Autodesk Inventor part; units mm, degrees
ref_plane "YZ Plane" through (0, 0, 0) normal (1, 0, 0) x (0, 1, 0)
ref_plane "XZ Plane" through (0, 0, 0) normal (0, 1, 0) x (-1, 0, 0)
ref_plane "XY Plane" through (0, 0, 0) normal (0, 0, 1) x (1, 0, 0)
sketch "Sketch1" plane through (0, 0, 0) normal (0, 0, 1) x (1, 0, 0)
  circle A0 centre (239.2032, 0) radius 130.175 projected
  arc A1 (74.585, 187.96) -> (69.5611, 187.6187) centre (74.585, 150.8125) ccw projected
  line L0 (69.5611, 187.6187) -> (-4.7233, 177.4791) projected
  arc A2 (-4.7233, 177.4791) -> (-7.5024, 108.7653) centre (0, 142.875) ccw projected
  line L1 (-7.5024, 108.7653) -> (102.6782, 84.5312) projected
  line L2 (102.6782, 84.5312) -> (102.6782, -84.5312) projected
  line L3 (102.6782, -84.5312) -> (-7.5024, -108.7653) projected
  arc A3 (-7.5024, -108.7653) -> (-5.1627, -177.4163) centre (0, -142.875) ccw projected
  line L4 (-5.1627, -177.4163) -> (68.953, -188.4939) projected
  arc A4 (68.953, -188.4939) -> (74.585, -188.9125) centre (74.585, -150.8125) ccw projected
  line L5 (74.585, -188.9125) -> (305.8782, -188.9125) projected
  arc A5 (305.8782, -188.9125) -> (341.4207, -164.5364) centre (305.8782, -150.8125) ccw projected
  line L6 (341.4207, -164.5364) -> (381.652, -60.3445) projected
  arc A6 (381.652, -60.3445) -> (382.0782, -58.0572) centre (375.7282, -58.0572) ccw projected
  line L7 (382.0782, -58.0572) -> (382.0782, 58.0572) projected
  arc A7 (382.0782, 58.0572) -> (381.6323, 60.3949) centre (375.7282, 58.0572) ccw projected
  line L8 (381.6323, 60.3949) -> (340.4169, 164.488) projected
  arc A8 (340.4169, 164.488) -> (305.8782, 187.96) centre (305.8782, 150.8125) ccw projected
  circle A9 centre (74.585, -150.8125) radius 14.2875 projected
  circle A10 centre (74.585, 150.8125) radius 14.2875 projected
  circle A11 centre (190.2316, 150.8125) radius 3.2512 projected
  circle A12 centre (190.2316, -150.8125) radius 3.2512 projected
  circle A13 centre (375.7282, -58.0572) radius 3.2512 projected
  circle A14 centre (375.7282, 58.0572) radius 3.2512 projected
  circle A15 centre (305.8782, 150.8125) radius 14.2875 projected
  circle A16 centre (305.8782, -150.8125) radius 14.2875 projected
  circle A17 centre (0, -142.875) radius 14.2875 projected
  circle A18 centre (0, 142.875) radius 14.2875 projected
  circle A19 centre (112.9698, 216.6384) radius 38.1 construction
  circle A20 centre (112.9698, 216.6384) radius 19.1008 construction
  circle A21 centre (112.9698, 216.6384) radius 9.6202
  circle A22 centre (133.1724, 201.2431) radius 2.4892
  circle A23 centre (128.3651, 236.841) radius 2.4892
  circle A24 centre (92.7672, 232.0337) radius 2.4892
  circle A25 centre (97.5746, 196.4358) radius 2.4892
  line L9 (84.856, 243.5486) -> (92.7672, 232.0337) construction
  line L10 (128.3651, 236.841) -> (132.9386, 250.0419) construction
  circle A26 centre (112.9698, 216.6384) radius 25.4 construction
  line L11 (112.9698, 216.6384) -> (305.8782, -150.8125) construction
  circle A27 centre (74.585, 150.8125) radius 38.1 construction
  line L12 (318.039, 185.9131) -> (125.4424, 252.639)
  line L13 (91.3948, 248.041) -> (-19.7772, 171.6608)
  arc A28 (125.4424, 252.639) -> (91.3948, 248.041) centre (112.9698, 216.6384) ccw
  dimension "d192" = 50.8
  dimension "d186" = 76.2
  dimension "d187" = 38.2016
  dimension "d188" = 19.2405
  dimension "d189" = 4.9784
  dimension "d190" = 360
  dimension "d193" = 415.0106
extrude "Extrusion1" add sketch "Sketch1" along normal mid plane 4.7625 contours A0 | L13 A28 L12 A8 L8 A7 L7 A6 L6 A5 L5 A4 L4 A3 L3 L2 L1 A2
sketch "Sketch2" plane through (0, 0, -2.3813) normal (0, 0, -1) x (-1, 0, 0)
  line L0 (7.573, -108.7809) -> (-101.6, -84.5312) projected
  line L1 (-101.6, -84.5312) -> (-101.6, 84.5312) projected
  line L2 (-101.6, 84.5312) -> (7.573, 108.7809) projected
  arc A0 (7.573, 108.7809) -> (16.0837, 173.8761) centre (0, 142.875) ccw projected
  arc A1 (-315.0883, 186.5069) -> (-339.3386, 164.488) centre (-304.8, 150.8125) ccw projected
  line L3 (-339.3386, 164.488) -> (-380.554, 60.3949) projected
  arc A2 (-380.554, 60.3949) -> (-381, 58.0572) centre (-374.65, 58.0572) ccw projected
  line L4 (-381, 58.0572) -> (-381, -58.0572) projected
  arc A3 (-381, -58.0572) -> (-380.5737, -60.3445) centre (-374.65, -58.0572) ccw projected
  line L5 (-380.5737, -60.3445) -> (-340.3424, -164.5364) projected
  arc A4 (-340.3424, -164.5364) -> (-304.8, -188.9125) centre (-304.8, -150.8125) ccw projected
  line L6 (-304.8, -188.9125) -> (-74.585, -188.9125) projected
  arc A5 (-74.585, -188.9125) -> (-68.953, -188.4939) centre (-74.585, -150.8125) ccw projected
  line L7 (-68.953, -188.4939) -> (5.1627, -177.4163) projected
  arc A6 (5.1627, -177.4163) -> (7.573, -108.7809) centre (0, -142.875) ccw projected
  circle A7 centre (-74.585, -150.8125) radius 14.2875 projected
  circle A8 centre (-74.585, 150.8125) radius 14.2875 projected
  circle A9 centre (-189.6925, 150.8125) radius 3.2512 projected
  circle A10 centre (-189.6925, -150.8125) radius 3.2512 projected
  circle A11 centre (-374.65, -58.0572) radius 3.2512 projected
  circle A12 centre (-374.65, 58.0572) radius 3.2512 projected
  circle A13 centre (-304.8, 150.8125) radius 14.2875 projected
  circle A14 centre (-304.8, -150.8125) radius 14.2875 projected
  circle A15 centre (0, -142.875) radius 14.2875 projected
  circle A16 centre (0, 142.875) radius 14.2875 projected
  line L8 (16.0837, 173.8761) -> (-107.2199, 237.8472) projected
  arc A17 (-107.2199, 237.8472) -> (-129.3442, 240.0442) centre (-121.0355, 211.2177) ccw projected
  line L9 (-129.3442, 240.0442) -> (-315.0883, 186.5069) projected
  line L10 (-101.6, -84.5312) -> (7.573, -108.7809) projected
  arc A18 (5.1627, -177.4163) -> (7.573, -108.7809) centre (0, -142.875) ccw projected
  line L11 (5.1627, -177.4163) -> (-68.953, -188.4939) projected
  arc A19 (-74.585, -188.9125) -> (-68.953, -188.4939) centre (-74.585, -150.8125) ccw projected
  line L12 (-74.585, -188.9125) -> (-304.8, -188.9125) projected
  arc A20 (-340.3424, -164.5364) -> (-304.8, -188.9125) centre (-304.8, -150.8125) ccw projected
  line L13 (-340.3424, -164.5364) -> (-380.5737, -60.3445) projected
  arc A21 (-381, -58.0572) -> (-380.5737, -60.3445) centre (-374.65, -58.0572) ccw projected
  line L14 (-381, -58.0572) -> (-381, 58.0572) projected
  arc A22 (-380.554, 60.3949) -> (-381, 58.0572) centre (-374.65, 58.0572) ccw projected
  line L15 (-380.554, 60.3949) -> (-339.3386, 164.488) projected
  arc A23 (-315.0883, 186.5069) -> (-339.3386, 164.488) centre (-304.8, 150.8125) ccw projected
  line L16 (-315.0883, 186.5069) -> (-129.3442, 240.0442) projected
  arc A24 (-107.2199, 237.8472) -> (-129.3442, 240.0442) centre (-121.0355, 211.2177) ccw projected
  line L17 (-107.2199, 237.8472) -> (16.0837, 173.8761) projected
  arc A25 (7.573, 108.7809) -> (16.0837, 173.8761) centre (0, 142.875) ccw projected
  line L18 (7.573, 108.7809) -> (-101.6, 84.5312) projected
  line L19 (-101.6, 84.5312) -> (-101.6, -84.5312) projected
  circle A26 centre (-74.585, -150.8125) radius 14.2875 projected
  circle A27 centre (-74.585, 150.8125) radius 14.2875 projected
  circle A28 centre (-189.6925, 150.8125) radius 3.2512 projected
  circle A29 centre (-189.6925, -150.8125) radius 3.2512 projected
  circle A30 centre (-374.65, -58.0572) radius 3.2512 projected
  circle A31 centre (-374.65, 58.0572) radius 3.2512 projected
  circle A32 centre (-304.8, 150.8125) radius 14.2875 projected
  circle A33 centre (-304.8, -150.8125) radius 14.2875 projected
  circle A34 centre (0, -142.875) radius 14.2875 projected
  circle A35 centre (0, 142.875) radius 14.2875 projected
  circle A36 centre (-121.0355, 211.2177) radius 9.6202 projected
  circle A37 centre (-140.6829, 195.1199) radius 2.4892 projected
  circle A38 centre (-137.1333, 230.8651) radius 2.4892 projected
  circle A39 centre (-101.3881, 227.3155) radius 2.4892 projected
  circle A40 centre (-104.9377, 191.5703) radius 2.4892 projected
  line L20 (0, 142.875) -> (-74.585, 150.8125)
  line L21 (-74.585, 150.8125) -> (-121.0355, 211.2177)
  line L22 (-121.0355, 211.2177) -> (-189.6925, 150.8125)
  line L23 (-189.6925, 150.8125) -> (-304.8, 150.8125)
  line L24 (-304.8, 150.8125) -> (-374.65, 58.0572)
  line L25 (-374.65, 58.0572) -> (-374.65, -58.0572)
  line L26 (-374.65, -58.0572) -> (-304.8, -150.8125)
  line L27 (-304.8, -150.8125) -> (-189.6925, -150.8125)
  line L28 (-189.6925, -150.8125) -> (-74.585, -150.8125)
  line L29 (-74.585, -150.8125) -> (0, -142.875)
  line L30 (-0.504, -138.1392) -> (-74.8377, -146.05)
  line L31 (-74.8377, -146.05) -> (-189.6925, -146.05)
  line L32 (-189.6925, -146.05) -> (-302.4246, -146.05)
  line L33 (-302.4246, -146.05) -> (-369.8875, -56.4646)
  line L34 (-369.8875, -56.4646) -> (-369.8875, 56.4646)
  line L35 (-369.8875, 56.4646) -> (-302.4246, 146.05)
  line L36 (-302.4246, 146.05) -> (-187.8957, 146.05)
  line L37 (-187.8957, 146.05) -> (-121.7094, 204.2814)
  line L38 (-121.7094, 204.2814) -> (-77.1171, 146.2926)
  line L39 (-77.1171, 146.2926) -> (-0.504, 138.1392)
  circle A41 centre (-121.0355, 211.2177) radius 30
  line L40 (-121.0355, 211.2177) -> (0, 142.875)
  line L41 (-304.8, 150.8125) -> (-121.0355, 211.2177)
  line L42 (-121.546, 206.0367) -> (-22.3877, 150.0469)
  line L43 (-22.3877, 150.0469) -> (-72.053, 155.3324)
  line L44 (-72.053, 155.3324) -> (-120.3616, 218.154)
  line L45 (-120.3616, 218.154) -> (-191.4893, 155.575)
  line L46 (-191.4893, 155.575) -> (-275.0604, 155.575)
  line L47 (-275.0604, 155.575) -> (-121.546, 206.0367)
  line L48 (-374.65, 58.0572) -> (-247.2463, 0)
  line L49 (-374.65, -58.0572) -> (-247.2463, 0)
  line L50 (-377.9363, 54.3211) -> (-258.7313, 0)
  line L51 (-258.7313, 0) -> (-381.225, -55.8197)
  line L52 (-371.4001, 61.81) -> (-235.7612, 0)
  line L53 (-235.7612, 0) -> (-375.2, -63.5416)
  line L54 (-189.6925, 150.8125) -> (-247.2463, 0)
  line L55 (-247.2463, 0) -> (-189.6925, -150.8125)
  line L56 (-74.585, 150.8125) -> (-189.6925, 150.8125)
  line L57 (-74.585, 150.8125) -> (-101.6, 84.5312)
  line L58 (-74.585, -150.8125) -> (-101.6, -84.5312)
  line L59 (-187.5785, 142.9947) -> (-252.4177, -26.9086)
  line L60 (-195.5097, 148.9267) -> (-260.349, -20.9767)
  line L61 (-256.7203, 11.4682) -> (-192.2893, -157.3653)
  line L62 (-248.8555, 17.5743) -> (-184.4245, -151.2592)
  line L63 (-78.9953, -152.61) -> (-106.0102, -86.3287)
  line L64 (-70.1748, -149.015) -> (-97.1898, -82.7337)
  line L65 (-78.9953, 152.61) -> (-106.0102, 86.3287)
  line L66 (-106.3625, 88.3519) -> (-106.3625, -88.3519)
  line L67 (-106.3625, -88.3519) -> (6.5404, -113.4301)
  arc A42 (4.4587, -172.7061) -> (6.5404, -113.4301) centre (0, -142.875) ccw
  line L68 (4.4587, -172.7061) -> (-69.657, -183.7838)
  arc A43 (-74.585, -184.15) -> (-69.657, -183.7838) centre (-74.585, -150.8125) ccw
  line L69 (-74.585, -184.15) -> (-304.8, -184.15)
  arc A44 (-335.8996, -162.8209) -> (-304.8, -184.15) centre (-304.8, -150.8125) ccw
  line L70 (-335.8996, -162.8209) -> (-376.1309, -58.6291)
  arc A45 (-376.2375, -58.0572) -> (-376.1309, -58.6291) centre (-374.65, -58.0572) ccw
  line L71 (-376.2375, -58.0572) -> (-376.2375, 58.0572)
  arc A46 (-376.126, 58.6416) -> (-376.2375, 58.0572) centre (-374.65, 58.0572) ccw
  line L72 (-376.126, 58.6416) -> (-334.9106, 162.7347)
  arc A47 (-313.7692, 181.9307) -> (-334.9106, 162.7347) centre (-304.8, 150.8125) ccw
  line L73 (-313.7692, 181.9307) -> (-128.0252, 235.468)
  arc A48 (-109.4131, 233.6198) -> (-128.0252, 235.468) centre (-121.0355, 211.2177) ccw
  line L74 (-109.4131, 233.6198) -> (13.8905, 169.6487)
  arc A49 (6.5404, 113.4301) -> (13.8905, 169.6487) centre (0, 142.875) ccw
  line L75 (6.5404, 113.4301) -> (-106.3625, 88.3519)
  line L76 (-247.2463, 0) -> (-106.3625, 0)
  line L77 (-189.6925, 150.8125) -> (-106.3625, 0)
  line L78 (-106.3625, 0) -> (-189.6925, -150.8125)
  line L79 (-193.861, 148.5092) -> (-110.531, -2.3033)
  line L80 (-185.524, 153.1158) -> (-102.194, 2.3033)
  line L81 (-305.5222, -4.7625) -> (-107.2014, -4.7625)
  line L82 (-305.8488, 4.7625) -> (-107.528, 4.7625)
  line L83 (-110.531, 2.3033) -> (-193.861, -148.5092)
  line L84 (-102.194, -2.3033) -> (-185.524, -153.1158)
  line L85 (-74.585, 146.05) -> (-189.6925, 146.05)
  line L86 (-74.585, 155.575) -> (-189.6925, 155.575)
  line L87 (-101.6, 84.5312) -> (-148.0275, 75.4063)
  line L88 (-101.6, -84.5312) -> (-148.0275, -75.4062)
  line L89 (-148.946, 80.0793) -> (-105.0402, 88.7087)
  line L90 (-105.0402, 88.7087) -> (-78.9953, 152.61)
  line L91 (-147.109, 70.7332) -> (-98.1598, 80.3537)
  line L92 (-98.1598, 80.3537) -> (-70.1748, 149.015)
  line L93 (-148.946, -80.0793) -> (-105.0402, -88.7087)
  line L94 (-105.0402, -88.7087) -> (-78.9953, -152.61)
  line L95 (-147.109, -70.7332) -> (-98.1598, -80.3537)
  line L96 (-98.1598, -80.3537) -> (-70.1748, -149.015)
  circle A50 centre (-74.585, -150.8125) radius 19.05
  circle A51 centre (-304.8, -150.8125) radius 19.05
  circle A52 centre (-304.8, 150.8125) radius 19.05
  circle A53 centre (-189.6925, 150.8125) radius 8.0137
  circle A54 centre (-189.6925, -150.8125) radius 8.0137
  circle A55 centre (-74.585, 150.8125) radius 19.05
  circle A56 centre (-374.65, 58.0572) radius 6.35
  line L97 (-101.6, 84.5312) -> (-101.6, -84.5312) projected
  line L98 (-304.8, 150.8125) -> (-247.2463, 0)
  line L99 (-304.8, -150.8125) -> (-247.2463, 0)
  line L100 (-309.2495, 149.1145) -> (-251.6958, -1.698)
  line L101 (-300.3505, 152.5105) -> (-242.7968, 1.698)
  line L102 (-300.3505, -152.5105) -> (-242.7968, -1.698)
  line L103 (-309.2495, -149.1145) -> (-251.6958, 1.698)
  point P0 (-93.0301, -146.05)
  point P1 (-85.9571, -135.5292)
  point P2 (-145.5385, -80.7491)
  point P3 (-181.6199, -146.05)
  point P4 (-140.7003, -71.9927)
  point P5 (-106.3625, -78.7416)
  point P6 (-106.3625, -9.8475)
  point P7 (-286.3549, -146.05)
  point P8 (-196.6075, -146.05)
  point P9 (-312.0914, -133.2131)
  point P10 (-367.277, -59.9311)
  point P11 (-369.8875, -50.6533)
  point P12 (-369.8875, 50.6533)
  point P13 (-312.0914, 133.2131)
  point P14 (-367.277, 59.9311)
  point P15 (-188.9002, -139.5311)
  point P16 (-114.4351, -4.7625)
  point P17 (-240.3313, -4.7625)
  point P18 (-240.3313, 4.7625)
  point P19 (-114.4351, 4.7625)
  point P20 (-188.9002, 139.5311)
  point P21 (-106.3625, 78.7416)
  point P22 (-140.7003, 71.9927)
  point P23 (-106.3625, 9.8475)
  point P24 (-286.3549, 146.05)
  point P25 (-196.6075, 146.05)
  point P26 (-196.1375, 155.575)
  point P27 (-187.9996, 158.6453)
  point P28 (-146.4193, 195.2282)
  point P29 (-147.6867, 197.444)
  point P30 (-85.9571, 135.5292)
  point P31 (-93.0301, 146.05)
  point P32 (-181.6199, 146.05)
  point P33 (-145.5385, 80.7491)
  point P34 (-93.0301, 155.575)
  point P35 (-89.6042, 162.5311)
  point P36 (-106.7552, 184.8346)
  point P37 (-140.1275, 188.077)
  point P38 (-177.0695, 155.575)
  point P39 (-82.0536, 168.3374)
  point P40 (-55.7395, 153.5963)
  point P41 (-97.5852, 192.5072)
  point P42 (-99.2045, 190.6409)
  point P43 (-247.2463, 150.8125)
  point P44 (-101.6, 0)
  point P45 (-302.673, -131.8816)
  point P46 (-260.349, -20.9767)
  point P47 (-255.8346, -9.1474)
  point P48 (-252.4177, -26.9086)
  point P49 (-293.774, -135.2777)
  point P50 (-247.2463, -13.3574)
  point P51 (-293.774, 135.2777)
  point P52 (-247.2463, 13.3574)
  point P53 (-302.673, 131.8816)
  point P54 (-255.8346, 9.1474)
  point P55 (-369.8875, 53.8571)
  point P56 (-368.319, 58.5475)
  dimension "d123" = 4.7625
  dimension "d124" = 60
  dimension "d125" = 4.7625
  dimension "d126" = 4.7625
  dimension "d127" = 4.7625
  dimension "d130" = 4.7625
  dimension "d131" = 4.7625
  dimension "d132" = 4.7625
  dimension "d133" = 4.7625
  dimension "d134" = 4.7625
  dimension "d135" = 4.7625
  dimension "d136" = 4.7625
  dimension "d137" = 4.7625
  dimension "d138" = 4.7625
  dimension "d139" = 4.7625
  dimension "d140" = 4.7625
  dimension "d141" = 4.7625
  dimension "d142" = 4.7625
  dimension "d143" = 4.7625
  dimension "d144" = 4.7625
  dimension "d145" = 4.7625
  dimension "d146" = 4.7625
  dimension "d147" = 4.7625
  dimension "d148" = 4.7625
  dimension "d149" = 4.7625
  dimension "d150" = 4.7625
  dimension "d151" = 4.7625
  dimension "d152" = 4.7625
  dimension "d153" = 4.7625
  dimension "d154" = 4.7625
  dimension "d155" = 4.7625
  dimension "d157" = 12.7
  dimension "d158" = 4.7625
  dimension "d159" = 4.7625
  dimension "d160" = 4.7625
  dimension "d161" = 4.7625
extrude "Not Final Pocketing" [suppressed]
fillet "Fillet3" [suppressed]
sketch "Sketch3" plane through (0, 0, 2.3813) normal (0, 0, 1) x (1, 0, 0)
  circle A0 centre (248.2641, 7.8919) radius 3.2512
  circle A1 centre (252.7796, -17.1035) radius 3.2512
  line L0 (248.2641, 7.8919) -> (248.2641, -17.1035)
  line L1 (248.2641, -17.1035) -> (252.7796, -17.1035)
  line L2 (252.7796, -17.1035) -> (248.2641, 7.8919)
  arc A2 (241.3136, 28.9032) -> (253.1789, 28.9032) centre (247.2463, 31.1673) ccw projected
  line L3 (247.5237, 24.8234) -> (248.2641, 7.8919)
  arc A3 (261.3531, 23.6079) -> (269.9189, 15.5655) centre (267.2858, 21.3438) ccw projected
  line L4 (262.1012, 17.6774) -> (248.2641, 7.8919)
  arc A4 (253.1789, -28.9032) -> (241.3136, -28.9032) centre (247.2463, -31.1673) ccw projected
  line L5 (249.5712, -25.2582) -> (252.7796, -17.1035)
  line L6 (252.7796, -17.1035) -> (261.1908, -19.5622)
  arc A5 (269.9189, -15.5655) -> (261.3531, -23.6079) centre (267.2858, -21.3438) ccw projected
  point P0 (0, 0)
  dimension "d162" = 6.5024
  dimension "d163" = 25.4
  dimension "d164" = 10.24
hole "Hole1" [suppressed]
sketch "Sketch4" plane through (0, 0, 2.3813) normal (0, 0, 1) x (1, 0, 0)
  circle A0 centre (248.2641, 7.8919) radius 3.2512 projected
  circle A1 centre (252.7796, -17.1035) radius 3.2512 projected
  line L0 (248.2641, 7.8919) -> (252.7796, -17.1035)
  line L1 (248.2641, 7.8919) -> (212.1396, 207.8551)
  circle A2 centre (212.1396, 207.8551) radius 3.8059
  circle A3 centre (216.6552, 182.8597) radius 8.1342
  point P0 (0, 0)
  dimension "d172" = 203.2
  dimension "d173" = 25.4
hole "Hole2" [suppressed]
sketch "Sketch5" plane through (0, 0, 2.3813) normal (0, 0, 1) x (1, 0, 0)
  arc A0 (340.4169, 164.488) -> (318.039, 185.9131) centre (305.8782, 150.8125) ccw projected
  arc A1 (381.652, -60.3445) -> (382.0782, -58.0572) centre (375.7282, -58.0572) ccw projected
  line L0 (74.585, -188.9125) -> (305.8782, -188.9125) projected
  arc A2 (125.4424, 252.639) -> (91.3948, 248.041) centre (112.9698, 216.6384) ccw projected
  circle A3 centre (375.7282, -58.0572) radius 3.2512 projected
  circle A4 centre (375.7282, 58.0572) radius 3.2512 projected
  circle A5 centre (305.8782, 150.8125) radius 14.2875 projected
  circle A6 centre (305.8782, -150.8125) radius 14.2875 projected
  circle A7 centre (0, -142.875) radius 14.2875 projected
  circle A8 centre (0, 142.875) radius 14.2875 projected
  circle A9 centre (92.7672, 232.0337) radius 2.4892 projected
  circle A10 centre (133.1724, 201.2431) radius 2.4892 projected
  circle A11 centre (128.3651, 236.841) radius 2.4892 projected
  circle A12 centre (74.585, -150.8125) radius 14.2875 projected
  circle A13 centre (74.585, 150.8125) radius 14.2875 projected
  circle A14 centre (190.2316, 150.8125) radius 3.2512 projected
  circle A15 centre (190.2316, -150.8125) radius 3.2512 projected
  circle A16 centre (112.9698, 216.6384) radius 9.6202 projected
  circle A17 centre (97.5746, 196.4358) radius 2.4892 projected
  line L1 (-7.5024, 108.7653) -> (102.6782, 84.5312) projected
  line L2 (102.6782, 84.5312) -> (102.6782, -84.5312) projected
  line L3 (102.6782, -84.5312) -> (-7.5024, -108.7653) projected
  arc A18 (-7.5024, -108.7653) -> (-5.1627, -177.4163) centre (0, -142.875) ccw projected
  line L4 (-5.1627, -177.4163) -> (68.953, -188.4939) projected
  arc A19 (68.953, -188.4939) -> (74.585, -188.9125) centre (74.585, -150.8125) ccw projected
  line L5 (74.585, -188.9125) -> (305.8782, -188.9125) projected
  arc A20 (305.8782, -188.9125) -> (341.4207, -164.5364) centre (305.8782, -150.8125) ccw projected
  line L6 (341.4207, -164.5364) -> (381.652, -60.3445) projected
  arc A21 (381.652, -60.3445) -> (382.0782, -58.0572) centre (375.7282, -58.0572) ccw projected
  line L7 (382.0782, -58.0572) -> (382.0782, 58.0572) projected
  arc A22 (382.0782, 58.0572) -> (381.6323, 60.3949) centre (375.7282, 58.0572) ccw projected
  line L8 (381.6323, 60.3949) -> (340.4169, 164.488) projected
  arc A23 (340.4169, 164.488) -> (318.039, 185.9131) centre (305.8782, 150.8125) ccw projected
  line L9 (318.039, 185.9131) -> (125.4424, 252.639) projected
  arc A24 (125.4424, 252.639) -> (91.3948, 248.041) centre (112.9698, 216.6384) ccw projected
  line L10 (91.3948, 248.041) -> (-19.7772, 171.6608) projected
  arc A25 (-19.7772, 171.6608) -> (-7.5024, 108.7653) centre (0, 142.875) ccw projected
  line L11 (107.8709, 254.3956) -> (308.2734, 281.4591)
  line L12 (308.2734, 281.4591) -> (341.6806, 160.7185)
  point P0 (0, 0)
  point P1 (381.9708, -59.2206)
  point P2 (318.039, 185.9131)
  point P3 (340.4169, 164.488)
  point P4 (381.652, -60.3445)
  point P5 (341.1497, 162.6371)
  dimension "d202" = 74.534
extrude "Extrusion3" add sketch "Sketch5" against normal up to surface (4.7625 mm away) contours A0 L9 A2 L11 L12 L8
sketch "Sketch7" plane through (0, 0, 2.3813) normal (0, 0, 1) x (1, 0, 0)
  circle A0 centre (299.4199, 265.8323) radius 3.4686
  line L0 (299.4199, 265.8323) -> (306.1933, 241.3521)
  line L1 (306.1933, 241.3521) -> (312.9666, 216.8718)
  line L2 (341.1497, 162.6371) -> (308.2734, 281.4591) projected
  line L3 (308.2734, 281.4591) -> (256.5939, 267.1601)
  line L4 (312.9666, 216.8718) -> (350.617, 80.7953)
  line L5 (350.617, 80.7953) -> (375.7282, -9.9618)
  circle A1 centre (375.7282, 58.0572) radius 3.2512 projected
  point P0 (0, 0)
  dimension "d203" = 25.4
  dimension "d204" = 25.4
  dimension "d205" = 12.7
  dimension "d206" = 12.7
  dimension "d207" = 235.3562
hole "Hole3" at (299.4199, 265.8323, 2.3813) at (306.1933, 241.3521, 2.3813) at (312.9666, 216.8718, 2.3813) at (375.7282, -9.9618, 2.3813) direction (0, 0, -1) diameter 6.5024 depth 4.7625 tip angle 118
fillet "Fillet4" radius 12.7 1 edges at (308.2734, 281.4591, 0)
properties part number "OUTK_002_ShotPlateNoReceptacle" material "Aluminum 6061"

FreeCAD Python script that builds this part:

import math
import FreeCAD as App
import Part
import Sketcher
from FreeCAD import Vector
Q = App.Units.Quantity


def edges_at(feature, points):
    """Names of the edges that pass closest to the given points."""
    edges = feature.Shape.Edges
    near = lambda p: min(range(len(edges)), key=lambda i: edges[i].distToShape(Part.Vertex(*p))[0])
    return sorted({f"Edge{near(p) + 1}" for p in points})

doc = App.newDocument("Part")
params = doc.addObject("Spreadsheet::Sheet", "Params")
for row, (alias, value) in enumerate([
    ("sketch1_radius", "1.5 in"),
    ("sketch1_diameter", "0.196 in"),
    ("sketch1_diameter2", "1.125 in"),
    ("sketch1_diameter3", "0.256 in"),
    ("sketch1_radius2", "1.375 in"),
    ("pad1_length", "0.1875 in"),
    ("sketch2_radius", "1.5 in"),
    ("pad2_length", "0.1875 in"),
    ("sketch3_diameter", "0.256 in"),
    ("hole_diameter", "0.256 in"),
    ("hole_depth", "0.1875 in"),
    ("fillet_radius", "0.5 in"),
], start=1):
    params.set(f"A{row}", alias)
    params.set(f"B{row}", "=" + value)
    params.setAlias(f"B{row}", alias)

body = doc.addObject("PartDesign::Body", "Body")

sketch1 = body.newObject("Sketcher::SketchObject", "Sketch")
sketch1.AttachmentSupport = (doc.getObject("XY_Plane"), [""])
sketch1.MapMode = "FlatFace"
sketch1.addGeometry([
    Part.LineSegment(Vector(91.4, 248, 0), Vector(-19.8, 171.7, 0)),
    Part.ArcOfCircle(Part.Circle(Vector(0, 142.9, 0), Vector(0, 0, 1), 34.9), math.radians(124), math.radians(258)),
    Part.LineSegment(Vector(-7.5, 108.8, 0), Vector(102.7, 84.5, 0)),
    Part.LineSegment(Vector(102.7, 84.5, 0), Vector(102.7, -84.5, 0)),
    Part.LineSegment(Vector(102.7, -84.5, 0), Vector(-7.5, -108.8, 0)),
    Part.ArcOfCircle(Part.Circle(Vector(0, -142.9, 0), Vector(0, 0, 1), 34.9), math.radians(102), math.radians(261)),
    Part.LineSegment(Vector(-5.2, -177.4, 0), Vector(69, -188.5, 0)),
    Part.ArcOfCircle(Part.Circle(Vector(74.6, -150.8, 0), Vector(0, 0, 1), 38.1), math.radians(-98.5), math.radians(-90)),
    Part.LineSegment(Vector(74.6, -188.9, 0), Vector(305.9, -188.9, 0)),
    Part.ArcOfCircle(Part.Circle(Vector(305.9, -150.8, 0), Vector(0, 0, 1), 38.1), math.radians(-90), math.radians(-21)),
    Part.LineSegment(Vector(341.4, -164.5, 0), Vector(381.7, -60.3, 0)),
    Part.ArcOfCircle(Part.Circle(Vector(375.7, -58.1, 0), Vector(0, 0, 1), 6.3), math.radians(-21), math.radians(0)),
    Part.LineSegment(Vector(382.1, -58.1, 0), Vector(382.1, 58.1, 0)),
    Part.ArcOfCircle(Part.Circle(Vector(375.7, 58.1, 0), Vector(0, 0, 1), 6.4), math.radians(0), math.radians(22)),
    Part.LineSegment(Vector(381.6, 60.4, 0), Vector(340.4, 164.5, 0)),
    Part.ArcOfCircle(Part.Circle(Vector(305.9, 150.8, 0), Vector(0, 0, 1), 37.1), math.radians(22), math.radians(71)),
    Part.LineSegment(Vector(318, 185.9, 0), Vector(125.4, 252.6, 0)),
    Part.ArcOfCircle(Part.Circle(Vector(113, 216.6, 0), Vector(0, 0, 1), 38.1), math.radians(71), math.radians(124)),
    Part.Circle(Vector(0, -142.9, 0), Vector(0, 0, 1), 14.3),
    Part.Circle(Vector(74.6, -150.8, 0), Vector(0, 0, 1), 14.3),
    Part.Circle(Vector(190.2, -150.8, 0), Vector(0, 0, 1), 3.3),
    Part.Circle(Vector(305.9, -150.8, 0), Vector(0, 0, 1), 14.3),
    Part.Circle(Vector(305.9, 150.8, 0), Vector(0, 0, 1), 14.3),
    Part.Circle(Vector(375.7, -58.1, 0), Vector(0, 0, 1), 3.3),
    Part.Circle(Vector(0, 142.9, 0), Vector(0, 0, 1), 14.3),
    Part.Circle(Vector(74.6, 150.8, 0), Vector(0, 0, 1), 14.3),
    Part.Circle(Vector(97.6, 196.4, 0), Vector(0, 0, 1), 2.5),
    Part.Circle(Vector(113, 216.6, 0), Vector(0, 0, 1), 9.6),
    Part.Circle(Vector(92.8, 232, 0), Vector(0, 0, 1), 2.5),
    Part.Circle(Vector(133.2, 201.2, 0), Vector(0, 0, 1), 2.5),
    Part.Circle(Vector(128.4, 236.8, 0), Vector(0, 0, 1), 2.5),
    Part.Circle(Vector(375.7, 58.1, 0), Vector(0, 0, 1), 3.3),
    Part.Circle(Vector(190.2, 150.8, 0), Vector(0, 0, 1), 3.3),
], False)
sketch1.addConstraint([
    Sketcher.Constraint("Tangent", 0, 2, 1, 1),
    Sketcher.Constraint("Tangent", 1, 2, 2, 1),
    Sketcher.Constraint("Coincident", 2, 2, 3, 1),
    Sketcher.Constraint("Coincident", 3, 2, 4, 1),
    Sketcher.Constraint("Tangent", 4, 2, 5, 1),
    Sketcher.Constraint("Tangent", 5, 2, 6, 1),
    Sketcher.Constraint("Tangent", 6, 2, 7, 1),
    Sketcher.Constraint("Tangent", 7, 2, 8, 1),
    Sketcher.Constraint("Tangent", 8, 2, 9, 1),
    Sketcher.Constraint("Tangent", 9, 2, 10, 1),
    Sketcher.Constraint("Tangent", 10, 2, 11, 1),
    Sketcher.Constraint("Tangent", 11, 2, 12, 1),
    Sketcher.Constraint("Tangent", 12, 2, 13, 1),
    Sketcher.Constraint("Tangent", 13, 2, 14, 1),
    Sketcher.Constraint("Tangent", 14, 2, 15, 1),
    Sketcher.Constraint("Tangent", 15, 2, 16, 1),
    Sketcher.Constraint("Tangent", 16, 2, 17, 1),
    Sketcher.Constraint("Tangent", 17, 2, 0, 1),
    Sketcher.Constraint("Vertical", 3),
    Sketcher.Constraint("Horizontal", 8),
    Sketcher.Constraint("Vertical", 12),
    Sketcher.Constraint("Coincident", 18, 3, 5, 3),
    Sketcher.Constraint("Coincident", 21, 3, 9, 3),
    Sketcher.Constraint("Coincident", 22, 3, 15, 3),
    Sketcher.Constraint("Coincident", 24, 3, 1, 3),
    Sketcher.Constraint("Coincident", 27, 3, 17, 3),
    Sketcher.Constraint("Equal", 1, 5),
    Sketcher.Constraint("Equal", 9, 17),
    Sketcher.Constraint("Equal", 18, 19),
    Sketcher.Constraint("Equal", 19, 21),
    Sketcher.Constraint("Equal", 21, 22),
    Sketcher.Constraint("Equal", 20, 23),
    Sketcher.Constraint("Equal", 22, 24),
    Sketcher.Constraint("Equal", 24, 25),
    Sketcher.Constraint("Equal", 26, 28),
    Sketcher.Constraint("Equal", 28, 29),
    Sketcher.Constraint("Equal", 29, 30),
    Sketcher.Constraint("Equal", 23, 31),
    Sketcher.Constraint("Equal", 31, 32),
    Sketcher.Constraint("Symmetric", 1, 3, 5, 3, -1, 1),
    Sketcher.Constraint("Symmetric", 9, 3, 15, 3, -1),
    Sketcher.Constraint("Symmetric", 19, 3, 25, 3, -1),
    Sketcher.Constraint("Symmetric", 23, 3, 31, 3, -1),
    Sketcher.Constraint("Symmetric", 20, 3, 32, 3, -1),
    Sketcher.Constraint("Symmetric", 1, 2, 4, 2, -1),
    Sketcher.Constraint("Horizontal", 9, 3, 19, 3),
    Sketcher.Constraint("Horizontal", 19, 3, 20, 3),
    Sketcher.Constraint("Horizontal", 13, 3, 31, 3),
    Sketcher.Constraint("Horizontal", 23, 3, 11, 2),
    Sketcher.Constraint("Vertical", 25, 3, 7, 2),
    Sketcher.Constraint("Radius", 9, Q("1.5 in")),
    Sketcher.Constraint("Diameter", 26, Q("0.196 in")),
    Sketcher.Constraint("Diameter", 27, Q("0.7575 in")),
    Sketcher.Constraint("Diameter", 18, Q("1.125 in")),
    Sketcher.Constraint("Diameter", 20, Q("0.256 in")),
    Sketcher.Constraint("Radius", 1, Q("1.375 in")),
    Sketcher.Constraint("Angle", 6, Q("-8.5007 deg")),
    Sketcher.Constraint("Angle", 14, Q("111.601 deg")),
    Sketcher.Constraint("Radius", 15, Q("1.4625 in")),
    Sketcher.Constraint("DistanceY", 3, 2, 3, 1, Q("6.656 in")),
    Sketcher.Constraint("Angle", 0, Q("-145.5092 deg")),
    Sketcher.Constraint("Angle", 16, Q("160.8911 deg")),
    Sketcher.Constraint("Radius", 7, 38.1063),
    Sketcher.Constraint("Radius", 11, 6.3485),
    Sketcher.Constraint("Radius", 13, 6.3516),
    Sketcher.Constraint("DistanceY", 5, 3, 1, 3, Q("11.25 in")),
    Sketcher.Constraint("DistanceX", 9, 3, 23, 3, Q("2.75 in")),
    Sketcher.Constraint("DistanceX", 23, 3, 11, 2, Q("0.25 in")),
    Sketcher.Constraint("DistanceY", 9, 3, -1, 1, Q("5.9375 in")),
    Sketcher.Constraint("DistanceX", -1, 1, 29, 3, Q("5.243 in")),
    Sketcher.Constraint("DistanceX", 7, 3, 9, 3, Q("9.106 in")),
    Sketcher.Constraint("DistanceX", 7, 3, 3, 2, Q("1.106 in")),
    Sketcher.Constraint("DistanceY", -1, 1, 26, 3, Q("7.7337 in")),
    Sketcher.Constraint("DistanceX", 26, 3, 17, 3, Q("0.6061 in")),
    Sketcher.Constraint("DistanceY", 26, 3, 28, 3, Q("1.4015 in")),
    Sketcher.Constraint("DistanceX", 28, 3, 30, 3, Q("1.4015 in")),
    Sketcher.Constraint("DistanceY", 29, 3, 30, 3, Q("1.4015 in")),
    Sketcher.Constraint("DistanceX", 17, 3, 32, 3, Q("3.0418 in")),
    Sketcher.Constraint("DistanceX", 30, 3, 32, 3, Q("2.4357 in")),
    Sketcher.Constraint("DistanceY", -1, 1, 29, 3, 201.243),
])
sketch1.setExpression("Constraints[50]", "Params.sketch1_radius")
sketch1.setExpression("Constraints[51]", "Params.sketch1_diameter")
sketch1.setExpression("Constraints[53]", "Params.sketch1_diameter2")
sketch1.setExpression("Constraints[54]", "Params.sketch1_diameter3")
sketch1.setExpression("Constraints[55]", "Params.sketch1_radius2")
pad1 = body.newObject("PartDesign::Pad", "Pad")
pad1.Profile = sketch1
pad1.setExpression("Length", "Params.pad1_length")
pad1.Midplane = True

sketch2 = body.newObject("Sketcher::SketchObject", "Sketch001")
sketch2.AttachmentSupport = (doc.getObject("XY_Plane"), [""])
sketch2.MapMode = "FlatFace"
sketch2.AttachmentOffset = App.Placement(Vector(0, 0, 0.093752 * 25.4), App.Rotation())
sketch2.addGeometry([
    Part.ArcOfCircle(Part.Circle(Vector(305.9, 150.8, 0), Vector(0, 0, 1), 37.1), math.radians(22), math.radians(71)),
    Part.LineSegment(Vector(340.4, 164.5, 0), Vector(341.1, 162.6, 0)),
    Part.LineSegment(Vector(341.1, 162.6, 0), Vector(308.3, 281.5, 0)),
    Part.LineSegment(Vector(308.3, 281.5, 0), Vector(107.9, 254.4, 0)),
    Part.ArcOfCircle(Part.Circle(Vector(113, 216.6, 0), Vector(0, 0, 1), 38.1), math.radians(71), math.radians(98)),
    Part.LineSegment(Vector(125.4, 252.6, 0), Vector(318, 185.9, 0)),
], False)
sketch2.addConstraint([
    Sketcher.Constraint("Tangent", 0, 1, 1, 1),
    Sketcher.Constraint("Coincident", 1, 2, 2, 1),
    Sketcher.Constraint("Coincident", 2, 2, 3, 1),
    Sketcher.Constraint("Tangent", 3, 2, 4, 2),
    Sketcher.Constraint("Tangent", 4, 1, 5, 1),
    Sketcher.Constraint("Tangent", 5, 2, 0, 2),
    Sketcher.Constraint("Radius", 4, Q("1.5 in")),
    Sketcher.Constraint("Angle", 1, Q("-68.399 deg")),
    Sketcher.Constraint("Radius", 0, Q("1.4625 in")),
    Sketcher.Constraint("Angle", 3, Q("-172.309 deg")),
    Sketcher.Constraint("Angle", 5, Q("-19.1089 deg")),
    Sketcher.Constraint("DistanceY", -1, 1, 0, 3, Q("5.9375 in")),
    Sketcher.Constraint("DistanceY", 4, 3, 2, 2, Q("2.552 in")),
    Sketcher.Constraint("DistanceY", 5, 2, 4, 1, Q("2.627 in")),
    Sketcher.Constraint("Distance", 2, Q("4.8538 in")),
    Sketcher.Constraint("DistanceX", -1, 1, 1, 2, Q("13.4311 in")),
])
sketch2.setExpression("Constraints[6]", "Params.sketch2_radius")
pad2 = body.newObject("PartDesign::Pad", "Pad001")
pad2.Profile = sketch2
pad2.setExpression("Length", "Params.pad2_length")
pad2.Reversed = True

sketch3 = body.newObject("Sketcher::SketchObject", "Sketch002")
sketch3.AttachmentSupport = (doc.getObject("XY_Plane"), [""])
sketch3.MapMode = "FlatFace"
sketch3.AttachmentOffset = App.Placement(Vector(0, 0, 0.093752 * 25.4), App.Rotation())
sketch3.addGeometry([
    Part.Circle(Vector(299.4, 265.8, 0), Vector(0, 0, 1), 3.3),
    Part.Circle(Vector(306.2, 241.4, 0), Vector(0, 0, 1), 3.3),
    Part.Circle(Vector(313, 216.9, 0), Vector(0, 0, 1), 3.3),
    Part.Circle(Vector(375.7, -10, 0), Vector(0, 0, 1), 3.3),
], False)
sketch3.addConstraint([
    Sketcher.Constraint("Equal", 0, 1),
    Sketcher.Constraint("Equal", 1, 2),
    Sketcher.Constraint("Equal", 2, 3),
    Sketcher.Constraint("Diameter", 0, Q("0.256 in")),
    Sketcher.Constraint("DistanceY", 3, 3, -1, 1, Q("0.3922 in")),
    Sketcher.Constraint("DistanceY", 2, 3, 1, 3, Q("0.9638 in")),
    Sketcher.Constraint("DistanceX", 1, 3, 3, 3, Q("2.7376 in")),
    Sketcher.Constraint("DistanceX", -1, 1, 0, 3, Q("11.788189 in")),
    Sketcher.Constraint("DistanceY", -1, 1, 0, 3, 265.8323),
    Sketcher.Constraint("DistanceX", -1, 1, 1, 3, 306.1933),
    Sketcher.Constraint("DistanceY", -1, 1, 1, 3, 241.352),
    Sketcher.Constraint("DistanceX", -1, 1, 2, 3, 312.9666),
])
sketch3.setExpression("Constraints[3]", "Params.sketch3_diameter")
doc.recompute()
hole = body.newObject("PartDesign::Hole", "Hole")
hole.Profile = sketch3
hole.ThreadType = "None"
hole.setExpression("Diameter", "Params.hole_diameter")
hole.DepthType = "Dimension"
hole.setExpression("Depth", "Params.hole_depth")
hole.DrillPoint = "Angled"
hole.DrillPointAngle = 118
doc.recompute()

fillet = body.newObject("PartDesign::Fillet", "Fillet")
fillet.Base = (hole, edges_at(hole, [(308.273, 281.459, 0)]))
fillet.setExpression("Radius", "Params.fillet_radius")

doc.recompute()
